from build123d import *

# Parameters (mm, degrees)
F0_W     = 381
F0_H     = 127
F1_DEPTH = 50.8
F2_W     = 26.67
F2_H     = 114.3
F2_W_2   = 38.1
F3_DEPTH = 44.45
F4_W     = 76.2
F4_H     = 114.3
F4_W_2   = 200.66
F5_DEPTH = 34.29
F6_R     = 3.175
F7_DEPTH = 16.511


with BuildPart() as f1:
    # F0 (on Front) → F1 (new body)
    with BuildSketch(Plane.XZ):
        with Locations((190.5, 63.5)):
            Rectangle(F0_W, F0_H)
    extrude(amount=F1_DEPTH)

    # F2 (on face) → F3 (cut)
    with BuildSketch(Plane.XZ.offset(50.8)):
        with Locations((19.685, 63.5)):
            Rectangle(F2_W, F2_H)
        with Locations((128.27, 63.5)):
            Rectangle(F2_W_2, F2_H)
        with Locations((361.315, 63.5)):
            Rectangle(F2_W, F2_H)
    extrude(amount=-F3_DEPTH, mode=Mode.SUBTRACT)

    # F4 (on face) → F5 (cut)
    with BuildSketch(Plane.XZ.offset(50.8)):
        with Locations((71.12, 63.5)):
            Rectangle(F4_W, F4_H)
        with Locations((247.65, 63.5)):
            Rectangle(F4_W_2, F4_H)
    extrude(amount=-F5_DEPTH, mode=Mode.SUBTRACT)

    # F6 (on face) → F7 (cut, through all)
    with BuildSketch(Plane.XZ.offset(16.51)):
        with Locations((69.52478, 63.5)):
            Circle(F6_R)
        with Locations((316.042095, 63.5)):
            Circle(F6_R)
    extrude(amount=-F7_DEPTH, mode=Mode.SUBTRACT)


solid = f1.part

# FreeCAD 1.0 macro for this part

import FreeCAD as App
import Part
import Sketcher
from FreeCAD import Vector
Q = App.Units.Quantity

doc = App.newDocument("Part")
params = doc.addObject("Spreadsheet::Sheet", "Params")
for row, (alias, value) in enumerate([
    ("sketch1_width", "15 in"),
    ("sketch1_height", "5 in"),
    ("pad1_length", "2 in"),
    ("sketch2_width", "1.5 in"),
    ("sketch2_height", "4.5 in"),
    ("sketch2_width2", "1.05 in"),
    ("pocket1_length", "1.75 in"),
    ("sketch3_width", "3 in"),
    ("sketch3_width2", "7.9 in"),
    ("sketch3_height", "4.5 in"),
    ("pocket2_length", "1.35 in"),
    ("sketch4_diameter", "0.25 in"),
], start=1):
    params.set(f"A{row}", alias)
    params.set(f"B{row}", "=" + value)
    params.setAlias(f"B{row}", alias)

body = doc.addObject("PartDesign::Body", "Body")

# Sketch on XZ plane
sketch1 = body.newObject("Sketcher::SketchObject", "Sketch")
sketch1.AttachmentSupport = (doc.getObject("XZ_Plane"), [""])
sketch1.MapMode = "FlatFace"
sketch1.addGeometry(Part.LineSegment(Vector(0, 127, 0), Vector(0, 0, 0)), False)
sketch1.addGeometry(Part.LineSegment(Vector(0, 0, 0), Vector(381, 0, 0)), False)
sketch1.addGeometry(Part.LineSegment(Vector(381, 0, 0), Vector(381, 127, 0)), False)
sketch1.addGeometry(Part.LineSegment(Vector(381, 127, 0), Vector(0, 127, 0)), False)
sketch1.addConstraint(Sketcher.Constraint("Coincident", 0, 2, 1, 1))
sketch1.addConstraint(Sketcher.Constraint("Coincident", 1, 2, 2, 1))
sketch1.addConstraint(Sketcher.Constraint("Coincident", 2, 2, 3, 1))
sketch1.addConstraint(Sketcher.Constraint("Coincident", 3, 2, 0, 1))
sketch1.addConstraint(Sketcher.Constraint("Vertical", 0))
sketch1.addConstraint(Sketcher.Constraint("Horizontal", 1))
sketch1.addConstraint(Sketcher.Constraint("Vertical", 2))
sketch1.addConstraint(Sketcher.Constraint("Horizontal", 3))
sketch1.addConstraint(Sketcher.Constraint("Coincident", 0, 2, -1, 1))
sketch1.addConstraint(Sketcher.Constraint("DistanceX", 1, 1, 1, 2, Q("15 in")))
sketch1.addConstraint(Sketcher.Constraint("DistanceY", 0, 2, 0, 1, Q("5 in")))
sketch1.setExpression("Constraints[9]", "Params.sketch1_width")
sketch1.setExpression("Constraints[10]", "Params.sketch1_height")
pad1 = body.newObject("PartDesign::Pad", "Pad")
pad1.Profile = sketch1
pad1.setExpression("Length", "Params.pad1_length")

# Sketch on XZ plane
sketch2 = body.newObject("Sketcher::SketchObject", "Sketch001")
sketch2.AttachmentSupport = (doc.getObject("XZ_Plane"), [""])
sketch2.MapMode = "FlatFace"
sketch2.AttachmentOffset = App.Placement(Vector(0, 0, 2 * 25.4), App.Rotation())
sketch2.addGeometry(Part.LineSegment(Vector(6, 121, 0), Vector(6, 6, 0)), False)
sketch2.addGeometry(Part.LineSegment(Vector(6, 6, 0), Vector(33, 6, 0)), False)
sketch2.addGeometry(Part.LineSegment(Vector(33, 6, 0), Vector(33, 121, 0)), False)
sketch2.addGeometry(Part.LineSegment(Vector(33, 121, 0), Vector(6, 121, 0)), False)
sketch2.addGeometry(Part.LineSegment(Vector(109, 121, 0), Vector(109, 6, 0)), False)
sketch2.addGeometry(Part.LineSegment(Vector(109, 6, 0), Vector(147, 6, 0)), False)
sketch2.addGeometry(Part.LineSegment(Vector(147, 6, 0), Vector(147, 121, 0)), False)
sketch2.addGeometry(Part.LineSegment(Vector(147, 121, 0), Vector(109, 121, 0)), False)
sketch2.addGeometry(Part.LineSegment(Vector(348, 121, 0), Vector(348, 6, 0)), False)
sketch2.addGeometry(Part.LineSegment(Vector(348, 6, 0), Vector(375, 6, 0)), False)
sketch2.addGeometry(Part.LineSegment(Vector(375, 6, 0), Vector(375, 121, 0)), False)
sketch2.addGeometry(Part.LineSegment(Vector(375, 121, 0), Vector(348, 121, 0)), False)
sketch2.addConstraint(Sketcher.Constraint("Coincident", 0, 2, 1, 1))
sketch2.addConstraint(Sketcher.Constraint("Coincident", 1, 2, 2, 1))
sketch2.addConstraint(Sketcher.Constraint("Coincident", 2, 2, 3, 1))
sketch2.addConstraint(Sketcher.Constraint("Coincident", 3, 2, 0, 1))
sketch2.addConstraint(Sketcher.Constraint("Coincident", 4, 2, 5, 1))
sketch2.addConstraint(Sketcher.Constraint("Coincident", 5, 2, 6, 1))
sketch2.addConstraint(Sketcher.Constraint("Coincident", 6, 2, 7, 1))
sketch2.addConstraint(Sketcher.Constraint("Coincident", 7, 2, 4, 1))
sketch2.addConstraint(Sketcher.Constraint("Coincident", 8, 2, 9, 1))
sketch2.addConstraint(Sketcher.Constraint("Coincident", 9, 2, 10, 1))
sketch2.addConstraint(Sketcher.Constraint("Coincident", 10, 2, 11, 1))
sketch2.addConstraint(Sketcher.Constraint("Coincident", 11, 2, 8, 1))
sketch2.addConstraint(Sketcher.Constraint("Vertical", 0))
sketch2.addConstraint(Sketcher.Constraint("Horizontal", 1))
sketch2.addConstraint(Sketcher.Constraint("Vertical", 2))
sketch2.addConstraint(Sketcher.Constraint("Horizontal", 3))
sketch2.addConstraint(Sketcher.Constraint("Vertical", 4))
sketch2.addConstraint(Sketcher.Constraint("Horizontal", 5))
sketch2.addConstraint(Sketcher.Constraint("Vertical", 6))
sketch2.addConstraint(Sketcher.Constraint("Horizontal", 7))
sketch2.addConstraint(Sketcher.Constraint("Vertical", 8))
sketch2.addConstraint(Sketcher.Constraint("Horizontal", 9))
sketch2.addConstraint(Sketcher.Constraint("Vertical", 10))
sketch2.addConstraint(Sketcher.Constraint("Horizontal", 11))
sketch2.addConstraint(Sketcher.Constraint("Horizontal", 1, 2, 4, 2))
sketch2.addConstraint(Sketcher.Constraint("Horizontal", 3, 2, 6, 2))
sketch2.addConstraint(Sketcher.Constraint("Horizontal", 5, 2, 8, 2))
sketch2.addConstraint(Sketcher.Constraint("Horizontal", 7, 2, 10, 2))
sketch2.addConstraint(Sketcher.Constraint("Equal", 3, 9))
sketch2.addConstraint(Sketcher.Constraint("DistanceX", 5, 1, 5, 2, Q("1.5 in")))
sketch2.addConstraint(Sketcher.Constraint("DistanceY", 0, 2, 0, 1, Q("4.5 in")))
sketch2.addConstraint(Sketcher.Constraint("DistanceX", 1, 2, 4, 2, Q("3 in")))
sketch2.addConstraint(Sketcher.Constraint("DistanceX", 1, 1, 1, 2, Q("1.05 in")))
sketch2.addConstraint(Sketcher.Constraint("DistanceX", -1, 1, 1, 2, Q("1.3 in")))
sketch2.addConstraint(Sketcher.Constraint("DistanceX", -1, 1, 8, 2, Q("13.7 in")))
sketch2.addConstraint(Sketcher.Constraint("DistanceY", -1, 1, 0, 2, Q("0.25 in")))
sketch2.setExpression("Constraints[29]", "Params.sketch2_width")
sketch2.setExpression("Constraints[30]", "Params.sketch2_height")
sketch2.setExpression("Constraints[32]", "Params.sketch2_width2")
pocket1 = body.newObject("PartDesign::Pocket", "Pocket")
pocket1.Profile = sketch2
pocket1.setExpression("Length", "Params.pocket1_length")

# Sketch on XZ plane
sketch3 = body.newObject("Sketcher::SketchObject", "Sketch002")
sketch3.AttachmentSupport = (doc.getObject("XZ_Plane"), [""])
sketch3.MapMode = "FlatFace"
sketch3.AttachmentOffset = App.Placement(Vector(0, 0, 2 * 25.4), App.Rotation())
sketch3.addGeometry(Part.LineSegment(Vector(33, 121, 0), Vector(33, 6, 0)), False)
sketch3.addGeometry(Part.LineSegment(Vector(33, 6, 0), Vector(109, 6, 0)), False)
sketch3.addGeometry(Part.LineSegment(Vector(109, 6, 0), Vector(109, 121, 0)), False)
sketch3.addGeometry(Part.LineSegment(Vector(109, 121, 0), Vector(33, 121, 0)), False)
sketch3.addGeometry(Part.LineSegment(Vector(147, 121, 0), Vector(147, 6, 0)), False)
sketch3.addGeometry(Part.LineSegment(Vector(147, 6, 0), Vector(348, 6, 0)), False)
sketch3.addGeometry(Part.LineSegment(Vector(348, 6, 0), Vector(348, 121, 0)), False)
sketch3.addGeometry(Part.LineSegment(Vector(348, 121, 0), Vector(147, 121, 0)), False)
sketch3.addConstraint(Sketcher.Constraint("Coincident", 0, 2, 1, 1))
sketch3.addConstraint(Sketcher.Constraint("Coincident", 1, 2, 2, 1))
sketch3.addConstraint(Sketcher.Constraint("Coincident", 2, 2, 3, 1))
sketch3.addConstraint(Sketcher.Constraint("Coincident", 3, 2, 0, 1))
sketch3.addConstraint(Sketcher.Constraint("Coincident", 4, 2, 5, 1))
sketch3.addConstraint(Sketcher.Constraint("Coincident", 5, 2, 6, 1))
sketch3.addConstraint(Sketcher.Constraint("Coincident", 6, 2, 7, 1))
sketch3.addConstraint(Sketcher.Constraint("Coincident", 7, 2, 4, 1))
sketch3.addConstraint(Sketcher.Constraint("Vertical", 0))
sketch3.addConstraint(Sketcher.Constraint("Horizontal", 1))
sketch3.addConstraint(Sketcher.Constraint("Vertical", 2))
sketch3.addConstraint(Sketcher.Constraint("Horizontal", 3))
sketch3.addConstraint(Sketcher.Constraint("Vertical", 4))
sketch3.addConstraint(Sketcher.Constraint("Horizontal", 5))
sketch3.addConstraint(Sketcher.Constraint("Vertical", 6))
sketch3.addConstraint(Sketcher.Constraint("Horizontal", 7))
sketch3.addConstraint(Sketcher.Constraint("Horizontal", 1, 2, 4, 2))
sketch3.addConstraint(Sketcher.Constraint("Horizontal", 3, 2, 6, 2))
sketch3.addConstraint(Sketcher.Constraint("DistanceX", 1, 1, 1, 2, Q("3 in")))
sketch3.addConstraint(Sketcher.Constraint("DistanceX", 5, 1, 5, 2, Q("7.9 in")))
sketch3.addConstraint(Sketcher.Constraint("DistanceY", 0, 2, 0, 1, Q("4.5 in")))
sketch3.addConstraint(Sketcher.Constraint("DistanceX", -1, 1, 0, 2, Q("1.3 in")))
sketch3.addConstraint(Sketcher.Constraint("DistanceX", -1, 1, 4, 2, Q("5.8 in")))
sketch3.addConstraint(Sketcher.Constraint("DistanceY", -1, 1, 0, 2, Q("0.25 in")))
sketch3.setExpression("Constraints[18]", "Params.sketch3_width")
sketch3.setExpression("Constraints[19]", "Params.sketch3_width2")
sketch3.setExpression("Constraints[20]", "Params.sketch3_height")
pocket2 = body.newObject("PartDesign::Pocket", "Pocket001")
pocket2.Profile = sketch3
pocket2.setExpression("Length", "Params.pocket2_length")

# Sketch on XZ plane
sketch4 = body.newObject("Sketcher::SketchObject", "Sketch003")
sketch4.AttachmentSupport = (doc.getObject("XZ_Plane"), [""])
sketch4.MapMode = "FlatFace"
sketch4.AttachmentOffset = App.Placement(Vector(0, 0, 0.65 * 25.4), App.Rotation())
sketch4.addGeometry(Part.Circle(Vector(69.5, 63.5, 0), Vector(0, 0, 1), 3.2), False)
sketch4.addGeometry(Part.Circle(Vector(316, 63.5, 0), Vector(0, 0, 1), 3.2), False)
sketch4.addConstraint(Sketcher.Constraint("Equal", 0, 1))
sketch4.addConstraint(Sketcher.Constraint("Horizontal", 0, 3, 1, 3))
sketch4.addConstraint(Sketcher.Constraint("Diameter", 0, Q("0.25 in")))
sketch4.addConstraint(Sketcher.Constraint("DistanceY", -1, 1, 0, 3, Q("2.5 in")))
sketch4.addConstraint(Sketcher.Constraint("DistanceX", -1, 1, 0, 3, Q("69.52478 mm")))
sketch4.addConstraint(Sketcher.Constraint("DistanceX", -1, 1, 1, 3, Q("316.042095 mm")))
sketch4.setExpression("Constraints[2]", "Params.sketch4_diameter")
pocket3 = body.newObject("PartDesign::Pocket", "Pocket002")
pocket3.Profile = sketch4
pocket3.Type = "ThroughAll"

doc.recompute()
